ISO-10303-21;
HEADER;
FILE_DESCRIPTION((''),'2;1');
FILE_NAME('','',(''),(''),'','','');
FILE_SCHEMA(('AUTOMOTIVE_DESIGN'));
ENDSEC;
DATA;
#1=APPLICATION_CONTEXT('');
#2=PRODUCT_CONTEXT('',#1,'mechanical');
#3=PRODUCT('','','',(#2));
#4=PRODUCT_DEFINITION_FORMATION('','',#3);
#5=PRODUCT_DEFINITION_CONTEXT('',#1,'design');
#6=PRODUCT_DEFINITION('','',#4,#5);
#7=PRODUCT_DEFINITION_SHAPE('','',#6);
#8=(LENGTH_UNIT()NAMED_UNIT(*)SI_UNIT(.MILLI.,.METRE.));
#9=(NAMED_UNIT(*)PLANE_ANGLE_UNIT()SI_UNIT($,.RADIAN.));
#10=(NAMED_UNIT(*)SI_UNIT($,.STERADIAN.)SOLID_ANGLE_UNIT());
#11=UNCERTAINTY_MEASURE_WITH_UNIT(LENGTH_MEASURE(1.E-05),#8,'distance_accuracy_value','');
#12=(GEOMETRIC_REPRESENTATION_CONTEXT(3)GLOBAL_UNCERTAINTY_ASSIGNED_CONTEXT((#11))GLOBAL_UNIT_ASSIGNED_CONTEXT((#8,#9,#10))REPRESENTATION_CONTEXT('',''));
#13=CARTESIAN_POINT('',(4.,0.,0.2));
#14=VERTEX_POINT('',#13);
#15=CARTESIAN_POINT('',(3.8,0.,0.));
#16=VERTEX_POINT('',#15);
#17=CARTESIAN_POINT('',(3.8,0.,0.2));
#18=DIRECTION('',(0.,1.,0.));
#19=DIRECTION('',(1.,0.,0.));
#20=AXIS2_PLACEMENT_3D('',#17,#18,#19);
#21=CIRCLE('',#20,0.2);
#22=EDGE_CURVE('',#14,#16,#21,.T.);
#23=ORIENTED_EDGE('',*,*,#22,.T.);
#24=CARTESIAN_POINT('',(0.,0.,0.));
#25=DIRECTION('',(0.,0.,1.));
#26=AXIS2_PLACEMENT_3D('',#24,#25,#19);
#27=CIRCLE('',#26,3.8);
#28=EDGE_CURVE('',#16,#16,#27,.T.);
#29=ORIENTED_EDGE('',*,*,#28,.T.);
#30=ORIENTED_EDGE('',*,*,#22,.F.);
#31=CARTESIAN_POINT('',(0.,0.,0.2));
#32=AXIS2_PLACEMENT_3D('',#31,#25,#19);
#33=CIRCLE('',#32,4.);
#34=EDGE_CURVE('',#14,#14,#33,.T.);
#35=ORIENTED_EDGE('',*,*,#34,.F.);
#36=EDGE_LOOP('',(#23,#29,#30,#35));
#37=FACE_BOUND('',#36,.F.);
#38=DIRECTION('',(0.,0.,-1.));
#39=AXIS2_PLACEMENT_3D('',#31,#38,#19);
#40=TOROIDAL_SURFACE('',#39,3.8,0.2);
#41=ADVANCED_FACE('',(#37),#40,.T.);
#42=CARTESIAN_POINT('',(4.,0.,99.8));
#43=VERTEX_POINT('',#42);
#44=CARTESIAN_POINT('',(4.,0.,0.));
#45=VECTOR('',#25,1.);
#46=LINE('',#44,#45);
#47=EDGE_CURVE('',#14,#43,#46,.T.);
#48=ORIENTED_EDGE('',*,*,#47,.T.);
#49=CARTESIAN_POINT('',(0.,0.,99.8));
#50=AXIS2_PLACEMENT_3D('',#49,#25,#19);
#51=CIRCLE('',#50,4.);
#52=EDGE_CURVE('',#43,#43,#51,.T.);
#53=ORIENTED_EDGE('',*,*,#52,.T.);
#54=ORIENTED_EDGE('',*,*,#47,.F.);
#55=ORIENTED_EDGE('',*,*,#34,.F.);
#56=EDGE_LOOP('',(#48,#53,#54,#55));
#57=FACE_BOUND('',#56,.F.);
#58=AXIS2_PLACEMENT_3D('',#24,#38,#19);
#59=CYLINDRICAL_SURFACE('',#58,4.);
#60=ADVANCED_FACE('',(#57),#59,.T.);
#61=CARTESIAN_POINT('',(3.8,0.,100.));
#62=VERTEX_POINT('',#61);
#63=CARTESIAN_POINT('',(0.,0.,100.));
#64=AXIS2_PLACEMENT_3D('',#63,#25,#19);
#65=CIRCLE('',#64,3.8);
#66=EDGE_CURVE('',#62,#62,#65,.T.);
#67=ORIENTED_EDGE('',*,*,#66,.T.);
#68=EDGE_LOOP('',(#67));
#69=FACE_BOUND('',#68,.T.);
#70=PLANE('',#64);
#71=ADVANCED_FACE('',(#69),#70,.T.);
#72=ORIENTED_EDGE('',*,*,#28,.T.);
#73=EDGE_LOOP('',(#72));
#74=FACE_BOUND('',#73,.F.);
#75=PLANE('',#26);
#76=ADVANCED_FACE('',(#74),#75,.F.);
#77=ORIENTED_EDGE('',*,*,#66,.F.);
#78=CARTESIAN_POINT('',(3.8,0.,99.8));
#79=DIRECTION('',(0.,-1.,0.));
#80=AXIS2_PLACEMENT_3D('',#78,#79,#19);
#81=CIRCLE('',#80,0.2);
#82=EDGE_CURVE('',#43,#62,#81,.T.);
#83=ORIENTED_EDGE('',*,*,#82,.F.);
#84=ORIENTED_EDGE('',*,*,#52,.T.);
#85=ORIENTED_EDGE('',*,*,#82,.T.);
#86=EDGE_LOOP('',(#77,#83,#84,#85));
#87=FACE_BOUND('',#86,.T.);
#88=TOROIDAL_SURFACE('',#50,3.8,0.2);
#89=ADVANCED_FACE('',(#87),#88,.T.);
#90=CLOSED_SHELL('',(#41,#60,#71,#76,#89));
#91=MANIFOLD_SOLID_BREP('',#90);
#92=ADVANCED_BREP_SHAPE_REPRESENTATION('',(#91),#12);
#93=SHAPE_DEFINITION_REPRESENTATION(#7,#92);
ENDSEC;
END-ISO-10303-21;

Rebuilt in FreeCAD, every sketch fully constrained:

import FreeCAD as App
import Part
import Sketcher
from FreeCAD import Vector


def edges_at(feature, points):
    """Names of the edges that pass closest to the given points."""
    edges = feature.Shape.Edges
    near = lambda p: min(range(len(edges)), key=lambda i: edges[i].distToShape(Part.Vertex(*p))[0])
    return sorted({f"Edge{near(p) + 1}" for p in points})

doc = App.newDocument("Part")
body = doc.addObject("PartDesign::Body", "Body")

# Sketch on XY plane
sketch1 = doc.addObject("Sketcher::SketchObject", "Sketch")
body.addObject(sketch1)
sketch1.AttachmentSupport = (doc.XY_Plane, [""])
sketch1.MapMode = "FlatFace"
sketch1.addGeometry(Part.Circle(Vector(0, 0, 0), Vector(0, 0, 1), 4), False)
sketch1.addConstraint(Sketcher.Constraint("Coincident", 0, 3, -1, 1))
sketch1.addConstraint(Sketcher.Constraint("Diameter", 0, 8.0))
pad1 = doc.addObject("PartDesign::Pad", "Pad")
body.addObject(pad1)
pad1.Profile = sketch1
pad1.Length = 100
doc.recompute()

fillet = doc.addObject("PartDesign::Fillet", "Fillet")
body.addObject(fillet)
fillet.Base = (pad1, edges_at(pad1, [(-4, 0, 100), (-4, 0, 0)]))
fillet.Radius = 0.2

doc.recompute()
